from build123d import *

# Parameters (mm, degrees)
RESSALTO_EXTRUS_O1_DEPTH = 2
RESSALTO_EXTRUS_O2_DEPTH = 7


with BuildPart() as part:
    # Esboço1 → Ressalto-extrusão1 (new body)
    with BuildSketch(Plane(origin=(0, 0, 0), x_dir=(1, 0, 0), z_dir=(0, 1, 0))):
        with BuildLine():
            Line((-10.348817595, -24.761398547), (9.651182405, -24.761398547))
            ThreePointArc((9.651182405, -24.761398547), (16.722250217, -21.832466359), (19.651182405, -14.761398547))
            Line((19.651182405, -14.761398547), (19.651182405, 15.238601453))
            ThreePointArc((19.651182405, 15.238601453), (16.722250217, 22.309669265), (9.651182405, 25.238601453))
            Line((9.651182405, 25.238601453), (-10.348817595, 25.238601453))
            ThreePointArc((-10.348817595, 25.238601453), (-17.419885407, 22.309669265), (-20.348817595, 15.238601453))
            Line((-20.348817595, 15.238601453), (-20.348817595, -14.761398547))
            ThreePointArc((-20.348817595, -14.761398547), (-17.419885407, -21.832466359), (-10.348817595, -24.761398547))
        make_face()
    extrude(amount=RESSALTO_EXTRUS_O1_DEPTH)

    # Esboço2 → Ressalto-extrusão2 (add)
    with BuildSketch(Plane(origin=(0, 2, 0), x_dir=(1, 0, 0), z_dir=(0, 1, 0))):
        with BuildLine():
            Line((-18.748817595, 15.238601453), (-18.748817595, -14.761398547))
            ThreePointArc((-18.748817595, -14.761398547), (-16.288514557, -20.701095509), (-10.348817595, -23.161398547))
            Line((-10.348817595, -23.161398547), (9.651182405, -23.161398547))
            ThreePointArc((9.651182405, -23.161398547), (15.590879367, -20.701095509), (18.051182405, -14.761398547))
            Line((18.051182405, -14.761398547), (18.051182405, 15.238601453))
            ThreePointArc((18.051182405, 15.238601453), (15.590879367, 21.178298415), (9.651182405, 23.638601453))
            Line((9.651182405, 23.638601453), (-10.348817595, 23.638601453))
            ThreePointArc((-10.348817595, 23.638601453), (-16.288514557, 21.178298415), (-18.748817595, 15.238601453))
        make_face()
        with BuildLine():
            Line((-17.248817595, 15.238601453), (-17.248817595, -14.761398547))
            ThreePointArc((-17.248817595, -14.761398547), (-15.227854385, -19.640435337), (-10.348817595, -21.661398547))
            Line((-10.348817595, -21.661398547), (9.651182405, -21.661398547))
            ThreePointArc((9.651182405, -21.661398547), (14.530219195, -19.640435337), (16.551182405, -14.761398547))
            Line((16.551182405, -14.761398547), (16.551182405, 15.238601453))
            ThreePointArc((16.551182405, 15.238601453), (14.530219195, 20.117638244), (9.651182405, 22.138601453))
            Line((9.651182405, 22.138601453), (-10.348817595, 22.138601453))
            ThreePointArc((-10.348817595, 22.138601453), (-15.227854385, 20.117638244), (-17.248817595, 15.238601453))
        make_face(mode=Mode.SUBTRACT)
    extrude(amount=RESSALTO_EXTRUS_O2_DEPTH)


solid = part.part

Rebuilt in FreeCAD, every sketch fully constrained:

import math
import FreeCAD as App
import Part
import Sketcher

doc = App.newDocument("Part")
body = doc.addObject("PartDesign::Body", "Body")

# Sketch on XZ plane
sketch1 = body.newObject("Sketcher::SketchObject", "Sketch")
sketch1.AttachmentSupport = (doc.getObject("XZ_Plane"), [""])
sketch1.MapMode = "FlatFace"
sketch1.addGeometry([
    Part.LineSegment(App.Vector(-10, 25, 0), App.Vector(10, 25, 0)),  # 0
    Part.ArcOfCircle(Part.Circle(App.Vector(10, 15, 0), App.Vector(0, 0, 1), 10), math.radians(0), math.radians(90)),  # 1
    Part.LineSegment(App.Vector(20, 15, 0), App.Vector(20, -15, 0)),  # 2
    Part.ArcOfCircle(Part.Circle(App.Vector(10, -15, 0), App.Vector(0, 0, 1), 10), math.radians(-90), math.radians(0)),  # 3
    Part.LineSegment(App.Vector(10, -25, 0), App.Vector(-10, -25, 0)),  # 4
    Part.ArcOfCircle(Part.Circle(App.Vector(-10, -15, 0), App.Vector(0, 0, 1), 10), math.radians(180), math.radians(270)),  # 5
    Part.LineSegment(App.Vector(-20, -15, 0), App.Vector(-20, 15, 0)),  # 6
    Part.ArcOfCircle(Part.Circle(App.Vector(-10, 15, 0), App.Vector(0, 0, 1), 10), math.radians(90), math.radians(180)),  # 7
], False)
sketch1.addConstraint([
    Sketcher.Constraint("Tangent", 0, 2, 1, 2),
    Sketcher.Constraint("Tangent", 1, 1, 2, 1),
    Sketcher.Constraint("Tangent", 2, 2, 3, 2),
    Sketcher.Constraint("Tangent", 3, 1, 4, 1),
    Sketcher.Constraint("Tangent", 4, 2, 5, 2),
    Sketcher.Constraint("Tangent", 5, 1, 6, 1),
    Sketcher.Constraint("Tangent", 6, 2, 7, 2),
    Sketcher.Constraint("Tangent", 7, 1, 0, 1),
    Sketcher.Constraint("Horizontal", 0),
    Sketcher.Constraint("Vertical", 2),
    Sketcher.Constraint("Horizontal", 4),
    Sketcher.Constraint("Vertical", 6),
    Sketcher.Constraint("Equal", 1, 3),
    Sketcher.Constraint("Equal", 3, 5),
    Sketcher.Constraint("Equal", 5, 7),
    Sketcher.Constraint("Radius", 1, 10.0),
    Sketcher.Constraint("DistanceX", 0, 1, 0, 2, 20.0),
    Sketcher.Constraint("DistanceY", 2, 2, 2, 1, 30.0),
    Sketcher.Constraint("DistanceY", -1, 1, 1, 3, 14.761399),
    Sketcher.Constraint("DistanceX", -1, 1, 1, 3, 9.651182),
])
pad1 = body.newObject("PartDesign::Pad", "Pad")
pad1.Profile = sketch1
pad1.Length = 2
pad1.Reversed = True

# Sketch on XZ plane
sketch2 = body.newObject("Sketcher::SketchObject", "Sketch001")
sketch2.AttachmentSupport = (doc.getObject("XZ_Plane"), [""])
sketch2.MapMode = "FlatFace"
sketch2.AttachmentOffset = App.Placement(App.Vector(0, 0, -2), App.Rotation())
sketch2.addGeometry([
    Part.LineSegment(App.Vector(-19, -15, 0), App.Vector(-19, 15, 0)),  # 0
    Part.ArcOfCircle(Part.Circle(App.Vector(-10, 15, 0), App.Vector(0, 0, 1), 8), math.radians(90), math.radians(180)),  # 1
    Part.LineSegment(App.Vector(-10, 23, 0), App.Vector(10, 23, 0)),  # 2
    Part.ArcOfCircle(Part.Circle(App.Vector(10, 15, 0), App.Vector(0, 0, 1), 8), math.radians(0), math.radians(90)),  # 3
    Part.LineSegment(App.Vector(18, 15, 0), App.Vector(18, -15, 0)),  # 4
    Part.ArcOfCircle(Part.Circle(App.Vector(10, -15, 0), App.Vector(0, 0, 1), 8), math.radians(-90), math.radians(0)),  # 5
    Part.LineSegment(App.Vector(10, -24, 0), App.Vector(-10, -24, 0)),  # 6
    Part.ArcOfCircle(Part.Circle(App.Vector(-10, -15, 0), App.Vector(0, 0, 1), 8), math.radians(180), math.radians(270)),  # 7
    Part.LineSegment(App.Vector(-17, 15, 0), App.Vector(-17, -15, 0)),  # 8
    Part.ArcOfCircle(Part.Circle(App.Vector(-10, -15, 0), App.Vector(0, 0, 1), 7), math.radians(180), math.radians(270)),  # 9
    Part.LineSegment(App.Vector(-10, -22, 0), App.Vector(10, -22, 0)),  # 10
    Part.ArcOfCircle(Part.Circle(App.Vector(10, -15, 0), App.Vector(0, 0, 1), 7), math.radians(-90), math.radians(0)),  # 11
    Part.LineSegment(App.Vector(17, -15, 0), App.Vector(17, 15, 0)),  # 12
    Part.ArcOfCircle(Part.Circle(App.Vector(10, 15, 0), App.Vector(0, 0, 1), 7), math.radians(0), math.radians(90)),  # 13
    Part.LineSegment(App.Vector(10, 22, 0), App.Vector(-10, 22, 0)),  # 14
    Part.ArcOfCircle(Part.Circle(App.Vector(-10, 15, 0), App.Vector(0, 0, 1), 7), math.radians(90), math.radians(180)),  # 15
], False)
sketch2.addConstraint([
    Sketcher.Constraint("Tangent", 0, 2, 1, 2),
    Sketcher.Constraint("Tangent", 1, 1, 2, 1),
    Sketcher.Constraint("Tangent", 2, 2, 3, 2),
    Sketcher.Constraint("Tangent", 3, 1, 4, 1),
    Sketcher.Constraint("Tangent", 4, 2, 5, 2),
    Sketcher.Constraint("Tangent", 5, 1, 6, 1),
    Sketcher.Constraint("Tangent", 6, 2, 7, 2),
    Sketcher.Constraint("Tangent", 7, 1, 0, 1),
    Sketcher.Constraint("Tangent", 8, 2, 9, 1),
    Sketcher.Constraint("Tangent", 9, 2, 10, 1),
    Sketcher.Constraint("Tangent", 10, 2, 11, 1),
    Sketcher.Constraint("Tangent", 11, 2, 12, 1),
    Sketcher.Constraint("Tangent", 12, 2, 13, 1),
    Sketcher.Constraint("Tangent", 13, 2, 14, 1),
    Sketcher.Constraint("Tangent", 14, 2, 15, 1),
    Sketcher.Constraint("Tangent", 15, 2, 8, 1),
    Sketcher.Constraint("Vertical", 0),
    Sketcher.Constraint("Horizontal", 2),
    Sketcher.Constraint("Vertical", 4),
    Sketcher.Constraint("Horizontal", 6),
    Sketcher.Constraint("Vertical", 8),
    Sketcher.Constraint("Horizontal", 10),
    Sketcher.Constraint("Vertical", 12),
    Sketcher.Constraint("Horizontal", 14),
    Sketcher.Constraint("Coincident", 9, 3, 7, 3),
    Sketcher.Constraint("Coincident", 11, 3, 5, 3),
    Sketcher.Constraint("Coincident", 13, 3, 3, 3),
    Sketcher.Constraint("Equal", 1, 3),
    Sketcher.Constraint("Equal", 3, 5),
    Sketcher.Constraint("Equal", 5, 7),
    Sketcher.Constraint("Equal", 13, 15),
    Sketcher.Constraint("Radius", 1, 8.4),
    Sketcher.Constraint("Radius", 9, 6.9),
    Sketcher.Constraint("DistanceX", 2, 1, 2, 2, 20.0),
    Sketcher.Constraint("DistanceY", 0, 1, 0, 2, 30.0),
    Sketcher.Constraint("DistanceY", -1, 1, 1, 3, 14.761399),
    Sketcher.Constraint("DistanceX", 1, 3, -1, 1, 10.348818),
])
pad2 = body.newObject("PartDesign::Pad", "Pad001")
pad2.Profile = sketch2
pad2.Length = 7
pad2.Reversed = True

doc.recompute()
